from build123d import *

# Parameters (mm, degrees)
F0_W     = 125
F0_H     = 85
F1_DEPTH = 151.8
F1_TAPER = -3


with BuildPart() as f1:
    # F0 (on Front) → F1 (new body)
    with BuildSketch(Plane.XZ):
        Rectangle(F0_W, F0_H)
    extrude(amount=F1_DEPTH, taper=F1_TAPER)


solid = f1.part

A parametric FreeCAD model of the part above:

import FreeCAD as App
import Part
import Sketcher
Q = App.Units.Quantity


def add_polygon(sketch, points):
    """Adds a closed chain of lines whose ends are joined by coincident constraints."""
    first, n = sketch.GeometryCount, len(points)
    for a, b in zip(points, points[1:] + points[:1]):
        sketch.addGeometry(Part.LineSegment(App.Vector(*a, 0), App.Vector(*b, 0)), False)
    for i in range(n):
        sketch.addConstraint(Sketcher.Constraint("Coincident", first + i, 2, first + (i + 1) % n, 1))

doc = App.newDocument("Part")
params = doc.addObject("Spreadsheet::Sheet", "Params")
for row, (alias, value) in enumerate([
    ("sketch1_width", "125 mm"),
    ("sketch1_height", "85 mm"),
    ("pad1_length", "151.8 mm"),
    ("pad1_taper", "3 deg"),
], start=1):
    params.set(f"A{row}", alias)
    params.set(f"B{row}", "=" + value)
    params.setAlias(f"B{row}", alias)

body = doc.addObject("PartDesign::Body", "Body")

sketch1 = body.newObject("Sketcher::SketchObject", "Sketch")
sketch1.AttachmentSupport = (doc.getObject("XZ_Plane"), [""])
sketch1.MapMode = "FlatFace"
add_polygon(sketch1, [(-62, 42), (-62, -42), (62, -42), (62, 42)])
sketch1.addConstraint([
    Sketcher.Constraint("Vertical", 0),
    Sketcher.Constraint("Horizontal", 1),
    Sketcher.Constraint("Vertical", 2),
    Sketcher.Constraint("Horizontal", 3),
    Sketcher.Constraint("Symmetric", 0, 2, 2, 2, -1, 1),
    Sketcher.Constraint("DistanceX", 1, 1, 1, 2, Q("125 mm")),
    Sketcher.Constraint("DistanceY", 0, 2, 0, 1, Q("85 mm")),
])
sketch1.setExpression("Constraints[9]", "Params.sketch1_width")
sketch1.setExpression("Constraints[10]", "Params.sketch1_height")
pad1 = body.newObject("PartDesign::Pad", "Pad")
pad1.Profile = sketch1
pad1.setExpression("Length", "Params.pad1_length")
pad1.setExpression("TaperAngle", "Params.pad1_taper")

doc.recompute()
